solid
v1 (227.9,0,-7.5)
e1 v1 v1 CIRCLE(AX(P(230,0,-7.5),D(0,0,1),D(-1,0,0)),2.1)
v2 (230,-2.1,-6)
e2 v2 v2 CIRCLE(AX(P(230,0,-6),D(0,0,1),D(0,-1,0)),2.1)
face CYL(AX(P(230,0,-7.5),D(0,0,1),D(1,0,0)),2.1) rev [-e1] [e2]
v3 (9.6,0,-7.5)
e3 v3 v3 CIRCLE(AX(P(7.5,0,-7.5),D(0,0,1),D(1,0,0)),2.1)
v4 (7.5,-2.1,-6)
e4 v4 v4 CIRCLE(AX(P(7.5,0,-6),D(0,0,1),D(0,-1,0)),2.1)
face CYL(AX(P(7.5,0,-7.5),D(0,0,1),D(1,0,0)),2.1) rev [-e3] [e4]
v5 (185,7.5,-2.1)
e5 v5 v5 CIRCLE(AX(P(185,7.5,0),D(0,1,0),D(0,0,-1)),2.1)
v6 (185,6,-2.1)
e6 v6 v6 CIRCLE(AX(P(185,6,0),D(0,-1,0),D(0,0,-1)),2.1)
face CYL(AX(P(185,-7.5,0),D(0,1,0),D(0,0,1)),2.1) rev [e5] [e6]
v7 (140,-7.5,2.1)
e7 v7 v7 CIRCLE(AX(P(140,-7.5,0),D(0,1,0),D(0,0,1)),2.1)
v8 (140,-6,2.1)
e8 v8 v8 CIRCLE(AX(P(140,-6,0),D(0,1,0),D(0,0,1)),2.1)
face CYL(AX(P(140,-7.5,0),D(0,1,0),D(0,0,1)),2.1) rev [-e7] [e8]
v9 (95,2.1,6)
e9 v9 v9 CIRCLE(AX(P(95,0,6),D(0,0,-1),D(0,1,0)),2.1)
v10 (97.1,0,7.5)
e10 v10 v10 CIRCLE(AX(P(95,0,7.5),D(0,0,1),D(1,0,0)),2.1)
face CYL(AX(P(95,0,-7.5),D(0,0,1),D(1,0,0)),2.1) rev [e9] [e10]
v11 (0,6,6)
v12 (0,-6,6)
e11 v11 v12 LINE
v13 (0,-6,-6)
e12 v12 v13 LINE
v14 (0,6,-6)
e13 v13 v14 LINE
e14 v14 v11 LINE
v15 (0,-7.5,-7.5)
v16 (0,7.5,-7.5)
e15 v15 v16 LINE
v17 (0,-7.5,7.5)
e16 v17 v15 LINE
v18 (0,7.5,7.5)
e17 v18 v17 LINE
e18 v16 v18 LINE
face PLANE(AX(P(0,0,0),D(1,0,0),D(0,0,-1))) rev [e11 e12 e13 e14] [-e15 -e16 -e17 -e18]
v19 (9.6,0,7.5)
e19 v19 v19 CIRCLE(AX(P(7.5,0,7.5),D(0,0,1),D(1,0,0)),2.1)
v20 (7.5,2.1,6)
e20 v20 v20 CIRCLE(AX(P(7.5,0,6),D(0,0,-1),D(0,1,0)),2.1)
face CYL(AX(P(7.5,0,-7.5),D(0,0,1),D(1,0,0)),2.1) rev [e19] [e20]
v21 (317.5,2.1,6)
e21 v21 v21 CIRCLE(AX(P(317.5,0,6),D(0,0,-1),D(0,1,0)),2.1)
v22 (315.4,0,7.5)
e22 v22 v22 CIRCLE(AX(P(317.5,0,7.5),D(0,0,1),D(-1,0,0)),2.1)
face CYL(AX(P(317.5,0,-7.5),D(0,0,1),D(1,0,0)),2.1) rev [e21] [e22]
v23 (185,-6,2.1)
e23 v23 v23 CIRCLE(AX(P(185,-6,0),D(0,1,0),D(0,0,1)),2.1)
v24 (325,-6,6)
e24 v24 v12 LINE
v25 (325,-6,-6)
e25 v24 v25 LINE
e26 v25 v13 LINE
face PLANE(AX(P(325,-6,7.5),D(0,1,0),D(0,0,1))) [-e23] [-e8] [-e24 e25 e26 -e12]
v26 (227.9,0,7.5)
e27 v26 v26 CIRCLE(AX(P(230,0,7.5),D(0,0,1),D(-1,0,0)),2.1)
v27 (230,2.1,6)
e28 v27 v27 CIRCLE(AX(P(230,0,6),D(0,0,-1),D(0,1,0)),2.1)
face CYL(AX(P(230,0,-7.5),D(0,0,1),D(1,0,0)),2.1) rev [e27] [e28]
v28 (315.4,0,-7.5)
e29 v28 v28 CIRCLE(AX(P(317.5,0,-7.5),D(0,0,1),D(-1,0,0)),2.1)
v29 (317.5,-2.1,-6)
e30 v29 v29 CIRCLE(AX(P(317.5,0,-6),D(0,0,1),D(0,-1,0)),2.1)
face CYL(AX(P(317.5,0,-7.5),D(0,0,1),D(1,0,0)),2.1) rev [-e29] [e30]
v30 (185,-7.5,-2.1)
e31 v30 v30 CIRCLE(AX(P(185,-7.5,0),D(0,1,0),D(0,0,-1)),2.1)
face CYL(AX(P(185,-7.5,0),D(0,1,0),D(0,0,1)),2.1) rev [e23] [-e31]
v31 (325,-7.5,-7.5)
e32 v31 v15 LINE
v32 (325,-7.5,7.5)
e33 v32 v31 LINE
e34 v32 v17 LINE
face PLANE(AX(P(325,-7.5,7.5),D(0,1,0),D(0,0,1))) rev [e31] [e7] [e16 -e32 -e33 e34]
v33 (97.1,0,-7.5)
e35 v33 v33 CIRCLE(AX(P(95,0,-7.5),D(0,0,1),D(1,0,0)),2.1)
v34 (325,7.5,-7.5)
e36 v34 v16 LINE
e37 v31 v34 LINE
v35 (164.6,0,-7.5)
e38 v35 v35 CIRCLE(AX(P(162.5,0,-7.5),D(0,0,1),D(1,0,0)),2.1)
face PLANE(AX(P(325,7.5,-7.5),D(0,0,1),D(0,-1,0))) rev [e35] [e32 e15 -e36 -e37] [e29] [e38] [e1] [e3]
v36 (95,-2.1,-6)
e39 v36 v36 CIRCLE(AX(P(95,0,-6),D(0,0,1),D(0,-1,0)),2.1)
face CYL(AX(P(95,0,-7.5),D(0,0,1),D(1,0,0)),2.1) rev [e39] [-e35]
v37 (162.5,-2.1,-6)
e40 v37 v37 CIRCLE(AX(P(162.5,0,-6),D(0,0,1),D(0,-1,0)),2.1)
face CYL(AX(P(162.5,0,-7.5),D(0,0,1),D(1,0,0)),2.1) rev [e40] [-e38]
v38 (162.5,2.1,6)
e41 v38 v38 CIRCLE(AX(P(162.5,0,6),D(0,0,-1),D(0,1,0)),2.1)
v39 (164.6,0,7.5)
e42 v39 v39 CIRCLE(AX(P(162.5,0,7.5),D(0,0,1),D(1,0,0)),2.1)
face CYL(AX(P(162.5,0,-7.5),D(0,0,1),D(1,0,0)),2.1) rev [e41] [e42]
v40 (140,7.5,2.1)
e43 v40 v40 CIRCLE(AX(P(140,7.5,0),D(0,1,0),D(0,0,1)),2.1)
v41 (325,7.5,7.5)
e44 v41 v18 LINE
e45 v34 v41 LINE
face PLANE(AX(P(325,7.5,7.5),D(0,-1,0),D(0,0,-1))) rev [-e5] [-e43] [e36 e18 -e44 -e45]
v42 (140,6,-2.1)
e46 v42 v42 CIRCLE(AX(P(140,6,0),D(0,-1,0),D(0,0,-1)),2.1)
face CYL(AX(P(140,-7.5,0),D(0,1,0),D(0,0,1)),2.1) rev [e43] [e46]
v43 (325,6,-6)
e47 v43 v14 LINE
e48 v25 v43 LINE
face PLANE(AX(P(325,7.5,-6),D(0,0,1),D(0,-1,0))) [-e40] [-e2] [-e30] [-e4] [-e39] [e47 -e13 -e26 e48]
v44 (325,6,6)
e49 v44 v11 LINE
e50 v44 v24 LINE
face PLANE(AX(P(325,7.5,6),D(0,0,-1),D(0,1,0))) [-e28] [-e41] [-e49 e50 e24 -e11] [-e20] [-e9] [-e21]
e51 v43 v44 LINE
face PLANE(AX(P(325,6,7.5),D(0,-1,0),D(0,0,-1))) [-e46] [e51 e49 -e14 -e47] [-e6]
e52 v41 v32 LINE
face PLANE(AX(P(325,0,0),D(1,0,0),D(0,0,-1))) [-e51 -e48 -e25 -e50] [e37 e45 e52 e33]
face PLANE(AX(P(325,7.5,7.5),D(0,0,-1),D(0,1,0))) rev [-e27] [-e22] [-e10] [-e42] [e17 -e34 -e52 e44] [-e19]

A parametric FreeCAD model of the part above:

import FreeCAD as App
import Part
import Sketcher
from FreeCAD import Vector

doc = App.newDocument("Part")
body = doc.addObject("PartDesign::Body", "Body")

# Sketch on YZ plane
sketch1 = body.newObject("Sketcher::SketchObject", "Sketch")
sketch1.AttachmentSupport = (doc.getObject("YZ_Plane"), [""])
sketch1.MapMode = "FlatFace"
sketch1.addGeometry(Part.LineSegment(Vector(7.5, 7.5, 0), Vector(-7.5, 7.5, 0)), False)
sketch1.addGeometry(Part.LineSegment(Vector(-7.5, 7.5, 0), Vector(-7.5, -7.5, 0)), False)
sketch1.addGeometry(Part.LineSegment(Vector(-7.5, -7.5, 0), Vector(7.5, -7.5, 0)), False)
sketch1.addGeometry(Part.LineSegment(Vector(7.5, -7.5, 0), Vector(7.5, 7.5, 0)), False)
sketch1.addGeometry(Part.LineSegment(Vector(-6, -6, 0), Vector(-6, 6, 0)), False)
sketch1.addGeometry(Part.LineSegment(Vector(-6, 6, 0), Vector(6, 6, 0)), False)
sketch1.addGeometry(Part.LineSegment(Vector(6, 6, 0), Vector(6, -6, 0)), False)
sketch1.addGeometry(Part.LineSegment(Vector(6, -6, 0), Vector(-6, -6, 0)), False)
sketch1.addConstraint(Sketcher.Constraint("Coincident", 0, 2, 1, 1))
sketch1.addConstraint(Sketcher.Constraint("Coincident", 1, 2, 2, 1))
sketch1.addConstraint(Sketcher.Constraint("Coincident", 2, 2, 3, 1))
sketch1.addConstraint(Sketcher.Constraint("Coincident", 3, 2, 0, 1))
sketch1.addConstraint(Sketcher.Constraint("Coincident", 4, 2, 5, 1))
sketch1.addConstraint(Sketcher.Constraint("Coincident", 5, 2, 6, 1))
sketch1.addConstraint(Sketcher.Constraint("Coincident", 6, 2, 7, 1))
sketch1.addConstraint(Sketcher.Constraint("Coincident", 7, 2, 4, 1))
sketch1.addConstraint(Sketcher.Constraint("Horizontal", 0))
sketch1.addConstraint(Sketcher.Constraint("Vertical", 1))
sketch1.addConstraint(Sketcher.Constraint("Horizontal", 2))
sketch1.addConstraint(Sketcher.Constraint("Vertical", 3))
sketch1.addConstraint(Sketcher.Constraint("Vertical", 4))
sketch1.addConstraint(Sketcher.Constraint("Horizontal", 5))
sketch1.addConstraint(Sketcher.Constraint("Vertical", 6))
sketch1.addConstraint(Sketcher.Constraint("Horizontal", 7))
sketch1.addConstraint(Sketcher.Constraint("Symmetric", 0, 2, 2, 2, -1, 1))
sketch1.addConstraint(Sketcher.Constraint("Symmetric", 4, 2, 6, 2, -1, 1))
sketch1.addConstraint(Sketcher.Constraint("Equal", 2, 1))
sketch1.addConstraint(Sketcher.Constraint("Equal", 7, 4))
sketch1.addConstraint(Sketcher.Constraint("DistanceX", 0, 2, 0, 1, 15.0))
sketch1.addConstraint(Sketcher.Constraint("DistanceX", 5, 1, 5, 2, 12.0))
pad1 = body.newObject("PartDesign::Pad", "Pad")
pad1.Profile = sketch1
pad1.Length = 325

# Sketch on XY plane
sketch2 = body.newObject("Sketcher::SketchObject", "Sketch001")
sketch2.AttachmentSupport = (doc.getObject("XY_Plane"), [""])
sketch2.MapMode = "FlatFace"
sketch2.AttachmentOffset = App.Placement(Vector(0, 0, 7.5), App.Rotation())
sketch2.addGeometry(Part.Circle(Vector(7.5, 0, 0), Vector(0, 0, 1), 2.1), False)
sketch2.addGeometry(Part.Circle(Vector(317.5, 0, 0), Vector(0, 0, 1), 2.1), False)
sketch2.addConstraint(Sketcher.Constraint("Equal", 0, 1))
sketch2.addConstraint(Sketcher.Constraint("PointOnObject", 0, 3, -1))
sketch2.addConstraint(Sketcher.Constraint("PointOnObject", 1, 3, -1))
sketch2.addConstraint(Sketcher.Constraint("Diameter", 0, 4.2))
sketch2.addConstraint(Sketcher.Constraint("DistanceX", 0, 3, 1, 3, 310.0))
sketch2.addConstraint(Sketcher.Constraint("DistanceX", -1, 1, 0, 3, 7.5))
pocket1 = body.newObject("PartDesign::Pocket", "Pocket")
pocket1.Profile = sketch2
pocket1.Type = "ThroughAll"

# Sketch on XY plane
sketch3 = body.newObject("Sketcher::SketchObject", "Sketch002")
sketch3.AttachmentSupport = (doc.getObject("XY_Plane"), [""])
sketch3.MapMode = "FlatFace"
sketch3.AttachmentOffset = App.Placement(Vector(0, 0, 7.5), App.Rotation())
sketch3.addGeometry(Part.Circle(Vector(95, 0, 0), Vector(0, 0, 1), 2.1), False)
sketch3.addGeometry(Part.Circle(Vector(230, 0, 0), Vector(0, 0, 1), 2.1), False)
sketch3.addGeometry(Part.Circle(Vector(162.5, 0, 0), Vector(0, 0, 1), 2.1), False)
sketch3.addConstraint(Sketcher.Constraint("Equal", 0, 1))
sketch3.addConstraint(Sketcher.Constraint("Equal", 1, 2))
sketch3.addConstraint(Sketcher.Constraint("PointOnObject", 0, 3, -1))
sketch3.addConstraint(Sketcher.Constraint("PointOnObject", 1, 3, -1))
sketch3.addConstraint(Sketcher.Constraint("PointOnObject", 2, 3, -1))
sketch3.addConstraint(Sketcher.Constraint("Diameter", 0, 4.2))
sketch3.addConstraint(Sketcher.Constraint("DistanceX", -1, 1, 0, 3, 95.0))
sketch3.addConstraint(Sketcher.Constraint("DistanceX", -1, 1, 1, 3, 230.0))
sketch3.addConstraint(Sketcher.Constraint("DistanceX", -1, 1, 2, 3, 162.5))
pocket2 = body.newObject("PartDesign::Pocket", "Pocket001")
pocket2.Profile = sketch3
pocket2.Type = "ThroughAll"

# Sketch on XZ plane
sketch4 = body.newObject("Sketcher::SketchObject", "Sketch003")
sketch4.AttachmentSupport = (doc.getObject("XZ_Plane"), [""])
sketch4.MapMode = "FlatFace"
sketch4.AttachmentOffset = App.Placement(Vector(0, 0, -7.5), App.Rotation())
sketch4.addGeometry(Part.Circle(Vector(140, 0, 0), Vector(0, 0, 1), 2.1), False)
sketch4.addGeometry(Part.Circle(Vector(185, 0, 0), Vector(0, 0, 1), 2.1), False)
sketch4.addConstraint(Sketcher.Constraint("Equal", 0, 1))
sketch4.addConstraint(Sketcher.Constraint("PointOnObject", 0, 3, -1))
sketch4.addConstraint(Sketcher.Constraint("PointOnObject", 1, 3, -1))
sketch4.addConstraint(Sketcher.Constraint("Diameter", 0, 4.2))
sketch4.addConstraint(Sketcher.Constraint("DistanceX", -1, 1, 0, 3, 140.0))
sketch4.addConstraint(Sketcher.Constraint("DistanceX", -1, 1, 1, 3, 185.0))
pocket3 = body.newObject("PartDesign::Pocket", "Pocket002")
pocket3.Profile = sketch4
pocket3.Type = "ThroughAll"
pocket3.Reversed = True

doc.recompute()
